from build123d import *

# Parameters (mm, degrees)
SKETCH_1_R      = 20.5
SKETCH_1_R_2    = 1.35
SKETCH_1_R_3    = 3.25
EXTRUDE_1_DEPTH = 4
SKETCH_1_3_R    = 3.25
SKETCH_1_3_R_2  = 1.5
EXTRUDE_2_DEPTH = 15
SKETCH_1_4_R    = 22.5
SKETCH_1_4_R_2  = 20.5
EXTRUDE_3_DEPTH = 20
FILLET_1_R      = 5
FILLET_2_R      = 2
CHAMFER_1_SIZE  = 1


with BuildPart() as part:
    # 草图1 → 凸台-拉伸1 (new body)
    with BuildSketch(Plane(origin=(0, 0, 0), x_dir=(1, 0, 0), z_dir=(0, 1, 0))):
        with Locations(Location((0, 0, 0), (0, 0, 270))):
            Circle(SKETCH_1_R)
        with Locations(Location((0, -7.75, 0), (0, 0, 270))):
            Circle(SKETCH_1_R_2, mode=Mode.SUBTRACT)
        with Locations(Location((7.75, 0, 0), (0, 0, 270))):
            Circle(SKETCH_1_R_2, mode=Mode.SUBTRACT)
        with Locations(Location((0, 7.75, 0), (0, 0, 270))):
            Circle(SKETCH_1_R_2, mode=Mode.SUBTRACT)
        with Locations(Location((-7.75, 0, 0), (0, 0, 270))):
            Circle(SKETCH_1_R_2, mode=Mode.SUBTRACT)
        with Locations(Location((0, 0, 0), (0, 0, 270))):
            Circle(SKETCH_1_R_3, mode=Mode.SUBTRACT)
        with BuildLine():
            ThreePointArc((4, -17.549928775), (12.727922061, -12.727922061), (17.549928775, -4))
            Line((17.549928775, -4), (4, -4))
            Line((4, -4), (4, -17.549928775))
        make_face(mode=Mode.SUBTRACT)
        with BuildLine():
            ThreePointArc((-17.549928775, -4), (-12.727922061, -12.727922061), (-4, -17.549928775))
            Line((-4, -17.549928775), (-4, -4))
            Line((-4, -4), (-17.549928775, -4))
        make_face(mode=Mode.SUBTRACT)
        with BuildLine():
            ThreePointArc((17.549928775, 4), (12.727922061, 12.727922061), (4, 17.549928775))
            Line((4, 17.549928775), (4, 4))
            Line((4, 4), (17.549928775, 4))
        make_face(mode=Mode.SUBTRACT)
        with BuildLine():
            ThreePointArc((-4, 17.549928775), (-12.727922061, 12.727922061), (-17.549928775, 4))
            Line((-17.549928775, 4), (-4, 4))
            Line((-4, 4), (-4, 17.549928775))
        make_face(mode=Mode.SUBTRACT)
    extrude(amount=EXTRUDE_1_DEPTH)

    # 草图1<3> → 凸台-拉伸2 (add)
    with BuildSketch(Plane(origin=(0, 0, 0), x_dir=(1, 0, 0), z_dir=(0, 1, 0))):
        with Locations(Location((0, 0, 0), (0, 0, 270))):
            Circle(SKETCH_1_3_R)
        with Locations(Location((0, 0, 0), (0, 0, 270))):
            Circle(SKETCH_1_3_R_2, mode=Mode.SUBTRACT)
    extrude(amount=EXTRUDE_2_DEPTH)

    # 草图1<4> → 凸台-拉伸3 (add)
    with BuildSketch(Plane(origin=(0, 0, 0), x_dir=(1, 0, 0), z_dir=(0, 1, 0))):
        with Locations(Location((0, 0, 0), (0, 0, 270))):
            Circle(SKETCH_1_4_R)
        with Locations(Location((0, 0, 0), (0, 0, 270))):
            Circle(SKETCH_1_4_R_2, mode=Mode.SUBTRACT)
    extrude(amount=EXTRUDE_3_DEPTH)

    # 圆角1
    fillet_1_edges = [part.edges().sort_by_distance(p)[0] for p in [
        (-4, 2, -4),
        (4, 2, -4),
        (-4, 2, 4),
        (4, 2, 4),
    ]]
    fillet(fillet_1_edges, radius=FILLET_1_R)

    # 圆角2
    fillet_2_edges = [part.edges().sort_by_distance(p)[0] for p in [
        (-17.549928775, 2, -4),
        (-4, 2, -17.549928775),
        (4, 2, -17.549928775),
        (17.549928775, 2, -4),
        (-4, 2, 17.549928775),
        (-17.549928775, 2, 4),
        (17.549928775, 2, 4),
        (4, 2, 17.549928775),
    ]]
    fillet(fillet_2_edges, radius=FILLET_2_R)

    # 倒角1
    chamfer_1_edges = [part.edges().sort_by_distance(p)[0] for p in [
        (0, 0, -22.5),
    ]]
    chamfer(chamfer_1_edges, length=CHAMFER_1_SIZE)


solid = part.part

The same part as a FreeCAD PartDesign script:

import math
import FreeCAD as App
import Part
import Sketcher
Q = App.Units.Quantity


def edges_at(feature, points):
    """Names of the edges that pass closest to the given points."""
    edges = feature.Shape.Edges
    near = lambda p: min(range(len(edges)), key=lambda i: edges[i].distToShape(Part.Vertex(*p))[0])
    return sorted({f"Edge{near(p) + 1}" for p in points})

doc = App.newDocument("Part")
params = doc.addObject("Spreadsheet::Sheet", "Params")
for row, (alias, value) in enumerate([
    ("sketch1_diameter", "41 mm"),
    ("sketch1_radius", "18 mm"),
    ("sketch1_diameter2", "2.7 mm"),
    ("sketch1_diameter3", "6.5 mm"),
    ("pad1_length", "4 mm"),
    ("sketch2_diameter", "3 mm"),
    ("sketch2_diameter2", "6.5 mm"),
    ("pad2_length", "15 mm"),
    ("sketch3_diameter", "45 mm"),
    ("sketch3_diameter2", "41 mm"),
    ("pad3_length", "20 mm"),
    ("fillet_radius", "5 mm"),
    ("fillet2_radius", "2 mm"),
    ("chamfer_size", "1 mm"),
], start=1):
    params.set(f"A{row}", alias)
    params.set(f"B{row}", "=" + value)
    params.setAlias(f"B{row}", alias)

body = doc.addObject("PartDesign::Body", "Body")

# Sketch on XZ plane
sketch1 = doc.addObject("Sketcher::SketchObject", "Sketch")
body.addObject(sketch1)
sketch1.AttachmentSupport = (doc.XZ_Plane, [""])
sketch1.MapMode = "FlatFace"
sketch1.addGeometry([
    Part.Circle(App.Vector(0, 0, 0), App.Vector(0, 0, 1), 20.5),  # 0
    Part.ArcOfCircle(Part.Circle(App.Vector(0, 0, 0), App.Vector(0, 0, 1), 18), math.radians(-167), math.radians(-103)),  # 1
    Part.LineSegment(App.Vector(-4, -17.5, 0), App.Vector(-4, -4, 0)),  # 2
    Part.LineSegment(App.Vector(-4, -4, 0), App.Vector(-17.5, -4, 0)),  # 3
    Part.ArcOfCircle(Part.Circle(App.Vector(0, 0, 0), App.Vector(0, 0, 1), 18), math.radians(103), math.radians(167)),  # 4
    Part.LineSegment(App.Vector(-17.5, 4, 0), App.Vector(-4, 4, 0)),  # 5
    Part.LineSegment(App.Vector(-4, 4, 0), App.Vector(-4, 17.5, 0)),  # 6
    Part.Circle(App.Vector(-7.8, 0, 0), App.Vector(0, 0, 1), 1.4),  # 7
    Part.Circle(App.Vector(0, -7.8, 0), App.Vector(0, 0, 1), 1.4),  # 8
    Part.ArcOfCircle(Part.Circle(App.Vector(0, 0, 0), App.Vector(0, 0, 1), 18), math.radians(-77), math.radians(-13)),  # 9
    Part.LineSegment(App.Vector(17.5, -4, 0), App.Vector(4, -4, 0)),  # 10
    Part.LineSegment(App.Vector(4, -4, 0), App.Vector(4, -17.5, 0)),  # 11
    Part.Circle(App.Vector(0, 0, 0), App.Vector(0, 0, 1), 3.2),  # 12
    Part.Circle(App.Vector(0, 7.8, 0), App.Vector(0, 0, 1), 1.4),  # 13
    Part.Circle(App.Vector(7.8, 0, 0), App.Vector(0, 0, 1), 1.4),  # 14
    Part.ArcOfCircle(Part.Circle(App.Vector(0, 0, 0), App.Vector(0, 0, 1), 18), math.radians(13), math.radians(77)),  # 15
    Part.LineSegment(App.Vector(4, 17.5, 0), App.Vector(4, 4, 0)),  # 16
    Part.LineSegment(App.Vector(4, 4, 0), App.Vector(17.5, 4, 0)),  # 17
], False)
sketch1.addConstraint([
    Sketcher.Constraint("Coincident", 1, 2, 2, 1),
    Sketcher.Constraint("Coincident", 2, 2, 3, 1),
    Sketcher.Constraint("Coincident", 3, 2, 1, 1),
    Sketcher.Constraint("Coincident", 4, 2, 5, 1),
    Sketcher.Constraint("Coincident", 5, 2, 6, 1),
    Sketcher.Constraint("Coincident", 6, 2, 4, 1),
    Sketcher.Constraint("Coincident", 9, 2, 10, 1),
    Sketcher.Constraint("Coincident", 10, 2, 11, 1),
    Sketcher.Constraint("Coincident", 11, 2, 9, 1),
    Sketcher.Constraint("Coincident", 15, 2, 16, 1),
    Sketcher.Constraint("Coincident", 16, 2, 17, 1),
    Sketcher.Constraint("Coincident", 17, 2, 15, 1),
    Sketcher.Constraint("Vertical", 2),
    Sketcher.Constraint("Horizontal", 3),
    Sketcher.Constraint("Horizontal", 5),
    Sketcher.Constraint("Vertical", 6),
    Sketcher.Constraint("Horizontal", 10),
    Sketcher.Constraint("Vertical", 11),
    Sketcher.Constraint("Vertical", 16),
    Sketcher.Constraint("Horizontal", 17),
    Sketcher.Constraint("Coincident", 0, 3, -1, 1),
    Sketcher.Constraint("Coincident", 1, 3, -1, 1),
    Sketcher.Constraint("Coincident", 4, 3, -1, 1),
    Sketcher.Constraint("Coincident", 9, 3, -1, 1),
    Sketcher.Constraint("Coincident", 12, 3, -1, 1),
    Sketcher.Constraint("Coincident", 15, 3, -1, 1),
    Sketcher.Constraint("Equal", 1, 4),
    Sketcher.Constraint("Equal", 7, 8),
    Sketcher.Constraint("Equal", 4, 9),
    Sketcher.Constraint("Equal", 8, 13),
    Sketcher.Constraint("Equal", 13, 14),
    Sketcher.Constraint("Equal", 9, 15),
    Sketcher.Constraint("Symmetric", 8, 3, 13, 3, -1, 1),
    Sketcher.Constraint("Symmetric", 7, 3, 14, 3, -1, 1),
    Sketcher.Constraint("Symmetric", 5, 2, 10, 2, -1, 1),
    Sketcher.Constraint("Symmetric", 2, 2, 16, 2, -1, 1),
    Sketcher.Constraint("Symmetric", 2, 2, 10, 2, -2),
    Sketcher.Constraint("PointOnObject", 7, 3, -1),
    Sketcher.Constraint("PointOnObject", 8, 3, -2),
    Sketcher.Constraint("Equal", 17, 2),
    Sketcher.Constraint("Diameter", 0, Q("41 mm")),
    Sketcher.Constraint("Radius", 1, Q("18 mm")),
    Sketcher.Constraint("Diameter", 7, Q("2.7 mm")),
    Sketcher.Constraint("Diameter", 12, Q("6.5 mm")),
    Sketcher.Constraint("DistanceX", 1, 2, -1, 1, Q("4 mm")),
    Sketcher.Constraint("DistanceX", 7, 3, -1, 1, Q("7.75 mm")),
    Sketcher.Constraint("DistanceY", 8, 3, -1, 1, Q("7.75 mm")),
])
sketch1.setExpression("Constraints[40]", "Params.sketch1_diameter")
sketch1.setExpression("Constraints[41]", "Params.sketch1_radius")
sketch1.setExpression("Constraints[42]", "Params.sketch1_diameter2")
sketch1.setExpression("Constraints[43]", "Params.sketch1_diameter3")
pad1 = doc.addObject("PartDesign::Pad", "Pad")
body.addObject(pad1)
pad1.Profile = sketch1
pad1.setExpression("Length", "Params.pad1_length")
pad1.Reversed = True

# Sketch on XZ plane
sketch2 = doc.addObject("Sketcher::SketchObject", "Sketch001")
body.addObject(sketch2)
sketch2.AttachmentSupport = (doc.XZ_Plane, [""])
sketch2.MapMode = "FlatFace"
sketch2.addGeometry([
    Part.Circle(App.Vector(0, 0, 0), App.Vector(0, 0, 1), 3.2),
    Part.Circle(App.Vector(0, 0, 0), App.Vector(0, 0, 1), 1.5),
], False)
sketch2.addConstraint([
    Sketcher.Constraint("Coincident", 0, 3, -1, 1),
    Sketcher.Constraint("Coincident", 1, 3, -1, 1),
    Sketcher.Constraint("Diameter", 1, Q("3 mm")),
    Sketcher.Constraint("Diameter", 0, Q("6.5 mm")),
])
sketch2.setExpression("Constraints[2]", "Params.sketch2_diameter")
sketch2.setExpression("Constraints[3]", "Params.sketch2_diameter2")
pad2 = doc.addObject("PartDesign::Pad", "Pad001")
body.addObject(pad2)
pad2.Profile = sketch2
pad2.setExpression("Length", "Params.pad2_length")
pad2.Reversed = True

# Sketch on XZ plane
sketch3 = doc.addObject("Sketcher::SketchObject", "Sketch002")
body.addObject(sketch3)
sketch3.AttachmentSupport = (doc.XZ_Plane, [""])
sketch3.MapMode = "FlatFace"
sketch3.addGeometry([
    Part.Circle(App.Vector(0, 0, 0), App.Vector(0, 0, 1), 22),
    Part.Circle(App.Vector(0, 0, 0), App.Vector(0, 0, 1), 20),
], False)
sketch3.addConstraint([
    Sketcher.Constraint("Coincident", 0, 3, -1, 1),
    Sketcher.Constraint("Coincident", 1, 3, -1, 1),
    Sketcher.Constraint("Diameter", 0, Q("45 mm")),
    Sketcher.Constraint("Diameter", 1, Q("41 mm")),
])
sketch3.setExpression("Constraints[2]", "Params.sketch3_diameter")
sketch3.setExpression("Constraints[3]", "Params.sketch3_diameter2")
pad3 = doc.addObject("PartDesign::Pad", "Pad002")
body.addObject(pad3)
pad3.Profile = sketch3
pad3.setExpression("Length", "Params.pad3_length")
pad3.Reversed = True
doc.recompute()

fillet = doc.addObject("PartDesign::Fillet", "Fillet")
body.addObject(fillet)
fillet.Base = (pad3, edges_at(pad3, [
    (-4, 2, -4),
    (4, 2, -4),
    (-4, 2, 4),
    (4, 2, 4),
]))
fillet.setExpression("Radius", "Params.fillet_radius")
doc.recompute()

fillet2 = doc.addObject("PartDesign::Fillet", "Fillet001")
body.addObject(fillet2)
fillet2.Base = (fillet, edges_at(fillet, [
    (-17.55, 2, -4),
    (-4, 2, -17.55),
    (4, 2, -17.55),
    (17.55, 2, -4),
    (-4, 2, 17.55),
    (-17.55, 2, 4),
    (17.55, 2, 4),
    (4, 2, 17.55),
]))
fillet2.setExpression("Radius", "Params.fillet2_radius")
doc.recompute()

chamfer = doc.addObject("PartDesign::Chamfer", "Chamfer")
body.addObject(chamfer)
chamfer.Base = (fillet2, edges_at(fillet2, [(0, 0, -22.5)]))
chamfer.setExpression("Size", "Params.chamfer_size")

doc.recompute()
